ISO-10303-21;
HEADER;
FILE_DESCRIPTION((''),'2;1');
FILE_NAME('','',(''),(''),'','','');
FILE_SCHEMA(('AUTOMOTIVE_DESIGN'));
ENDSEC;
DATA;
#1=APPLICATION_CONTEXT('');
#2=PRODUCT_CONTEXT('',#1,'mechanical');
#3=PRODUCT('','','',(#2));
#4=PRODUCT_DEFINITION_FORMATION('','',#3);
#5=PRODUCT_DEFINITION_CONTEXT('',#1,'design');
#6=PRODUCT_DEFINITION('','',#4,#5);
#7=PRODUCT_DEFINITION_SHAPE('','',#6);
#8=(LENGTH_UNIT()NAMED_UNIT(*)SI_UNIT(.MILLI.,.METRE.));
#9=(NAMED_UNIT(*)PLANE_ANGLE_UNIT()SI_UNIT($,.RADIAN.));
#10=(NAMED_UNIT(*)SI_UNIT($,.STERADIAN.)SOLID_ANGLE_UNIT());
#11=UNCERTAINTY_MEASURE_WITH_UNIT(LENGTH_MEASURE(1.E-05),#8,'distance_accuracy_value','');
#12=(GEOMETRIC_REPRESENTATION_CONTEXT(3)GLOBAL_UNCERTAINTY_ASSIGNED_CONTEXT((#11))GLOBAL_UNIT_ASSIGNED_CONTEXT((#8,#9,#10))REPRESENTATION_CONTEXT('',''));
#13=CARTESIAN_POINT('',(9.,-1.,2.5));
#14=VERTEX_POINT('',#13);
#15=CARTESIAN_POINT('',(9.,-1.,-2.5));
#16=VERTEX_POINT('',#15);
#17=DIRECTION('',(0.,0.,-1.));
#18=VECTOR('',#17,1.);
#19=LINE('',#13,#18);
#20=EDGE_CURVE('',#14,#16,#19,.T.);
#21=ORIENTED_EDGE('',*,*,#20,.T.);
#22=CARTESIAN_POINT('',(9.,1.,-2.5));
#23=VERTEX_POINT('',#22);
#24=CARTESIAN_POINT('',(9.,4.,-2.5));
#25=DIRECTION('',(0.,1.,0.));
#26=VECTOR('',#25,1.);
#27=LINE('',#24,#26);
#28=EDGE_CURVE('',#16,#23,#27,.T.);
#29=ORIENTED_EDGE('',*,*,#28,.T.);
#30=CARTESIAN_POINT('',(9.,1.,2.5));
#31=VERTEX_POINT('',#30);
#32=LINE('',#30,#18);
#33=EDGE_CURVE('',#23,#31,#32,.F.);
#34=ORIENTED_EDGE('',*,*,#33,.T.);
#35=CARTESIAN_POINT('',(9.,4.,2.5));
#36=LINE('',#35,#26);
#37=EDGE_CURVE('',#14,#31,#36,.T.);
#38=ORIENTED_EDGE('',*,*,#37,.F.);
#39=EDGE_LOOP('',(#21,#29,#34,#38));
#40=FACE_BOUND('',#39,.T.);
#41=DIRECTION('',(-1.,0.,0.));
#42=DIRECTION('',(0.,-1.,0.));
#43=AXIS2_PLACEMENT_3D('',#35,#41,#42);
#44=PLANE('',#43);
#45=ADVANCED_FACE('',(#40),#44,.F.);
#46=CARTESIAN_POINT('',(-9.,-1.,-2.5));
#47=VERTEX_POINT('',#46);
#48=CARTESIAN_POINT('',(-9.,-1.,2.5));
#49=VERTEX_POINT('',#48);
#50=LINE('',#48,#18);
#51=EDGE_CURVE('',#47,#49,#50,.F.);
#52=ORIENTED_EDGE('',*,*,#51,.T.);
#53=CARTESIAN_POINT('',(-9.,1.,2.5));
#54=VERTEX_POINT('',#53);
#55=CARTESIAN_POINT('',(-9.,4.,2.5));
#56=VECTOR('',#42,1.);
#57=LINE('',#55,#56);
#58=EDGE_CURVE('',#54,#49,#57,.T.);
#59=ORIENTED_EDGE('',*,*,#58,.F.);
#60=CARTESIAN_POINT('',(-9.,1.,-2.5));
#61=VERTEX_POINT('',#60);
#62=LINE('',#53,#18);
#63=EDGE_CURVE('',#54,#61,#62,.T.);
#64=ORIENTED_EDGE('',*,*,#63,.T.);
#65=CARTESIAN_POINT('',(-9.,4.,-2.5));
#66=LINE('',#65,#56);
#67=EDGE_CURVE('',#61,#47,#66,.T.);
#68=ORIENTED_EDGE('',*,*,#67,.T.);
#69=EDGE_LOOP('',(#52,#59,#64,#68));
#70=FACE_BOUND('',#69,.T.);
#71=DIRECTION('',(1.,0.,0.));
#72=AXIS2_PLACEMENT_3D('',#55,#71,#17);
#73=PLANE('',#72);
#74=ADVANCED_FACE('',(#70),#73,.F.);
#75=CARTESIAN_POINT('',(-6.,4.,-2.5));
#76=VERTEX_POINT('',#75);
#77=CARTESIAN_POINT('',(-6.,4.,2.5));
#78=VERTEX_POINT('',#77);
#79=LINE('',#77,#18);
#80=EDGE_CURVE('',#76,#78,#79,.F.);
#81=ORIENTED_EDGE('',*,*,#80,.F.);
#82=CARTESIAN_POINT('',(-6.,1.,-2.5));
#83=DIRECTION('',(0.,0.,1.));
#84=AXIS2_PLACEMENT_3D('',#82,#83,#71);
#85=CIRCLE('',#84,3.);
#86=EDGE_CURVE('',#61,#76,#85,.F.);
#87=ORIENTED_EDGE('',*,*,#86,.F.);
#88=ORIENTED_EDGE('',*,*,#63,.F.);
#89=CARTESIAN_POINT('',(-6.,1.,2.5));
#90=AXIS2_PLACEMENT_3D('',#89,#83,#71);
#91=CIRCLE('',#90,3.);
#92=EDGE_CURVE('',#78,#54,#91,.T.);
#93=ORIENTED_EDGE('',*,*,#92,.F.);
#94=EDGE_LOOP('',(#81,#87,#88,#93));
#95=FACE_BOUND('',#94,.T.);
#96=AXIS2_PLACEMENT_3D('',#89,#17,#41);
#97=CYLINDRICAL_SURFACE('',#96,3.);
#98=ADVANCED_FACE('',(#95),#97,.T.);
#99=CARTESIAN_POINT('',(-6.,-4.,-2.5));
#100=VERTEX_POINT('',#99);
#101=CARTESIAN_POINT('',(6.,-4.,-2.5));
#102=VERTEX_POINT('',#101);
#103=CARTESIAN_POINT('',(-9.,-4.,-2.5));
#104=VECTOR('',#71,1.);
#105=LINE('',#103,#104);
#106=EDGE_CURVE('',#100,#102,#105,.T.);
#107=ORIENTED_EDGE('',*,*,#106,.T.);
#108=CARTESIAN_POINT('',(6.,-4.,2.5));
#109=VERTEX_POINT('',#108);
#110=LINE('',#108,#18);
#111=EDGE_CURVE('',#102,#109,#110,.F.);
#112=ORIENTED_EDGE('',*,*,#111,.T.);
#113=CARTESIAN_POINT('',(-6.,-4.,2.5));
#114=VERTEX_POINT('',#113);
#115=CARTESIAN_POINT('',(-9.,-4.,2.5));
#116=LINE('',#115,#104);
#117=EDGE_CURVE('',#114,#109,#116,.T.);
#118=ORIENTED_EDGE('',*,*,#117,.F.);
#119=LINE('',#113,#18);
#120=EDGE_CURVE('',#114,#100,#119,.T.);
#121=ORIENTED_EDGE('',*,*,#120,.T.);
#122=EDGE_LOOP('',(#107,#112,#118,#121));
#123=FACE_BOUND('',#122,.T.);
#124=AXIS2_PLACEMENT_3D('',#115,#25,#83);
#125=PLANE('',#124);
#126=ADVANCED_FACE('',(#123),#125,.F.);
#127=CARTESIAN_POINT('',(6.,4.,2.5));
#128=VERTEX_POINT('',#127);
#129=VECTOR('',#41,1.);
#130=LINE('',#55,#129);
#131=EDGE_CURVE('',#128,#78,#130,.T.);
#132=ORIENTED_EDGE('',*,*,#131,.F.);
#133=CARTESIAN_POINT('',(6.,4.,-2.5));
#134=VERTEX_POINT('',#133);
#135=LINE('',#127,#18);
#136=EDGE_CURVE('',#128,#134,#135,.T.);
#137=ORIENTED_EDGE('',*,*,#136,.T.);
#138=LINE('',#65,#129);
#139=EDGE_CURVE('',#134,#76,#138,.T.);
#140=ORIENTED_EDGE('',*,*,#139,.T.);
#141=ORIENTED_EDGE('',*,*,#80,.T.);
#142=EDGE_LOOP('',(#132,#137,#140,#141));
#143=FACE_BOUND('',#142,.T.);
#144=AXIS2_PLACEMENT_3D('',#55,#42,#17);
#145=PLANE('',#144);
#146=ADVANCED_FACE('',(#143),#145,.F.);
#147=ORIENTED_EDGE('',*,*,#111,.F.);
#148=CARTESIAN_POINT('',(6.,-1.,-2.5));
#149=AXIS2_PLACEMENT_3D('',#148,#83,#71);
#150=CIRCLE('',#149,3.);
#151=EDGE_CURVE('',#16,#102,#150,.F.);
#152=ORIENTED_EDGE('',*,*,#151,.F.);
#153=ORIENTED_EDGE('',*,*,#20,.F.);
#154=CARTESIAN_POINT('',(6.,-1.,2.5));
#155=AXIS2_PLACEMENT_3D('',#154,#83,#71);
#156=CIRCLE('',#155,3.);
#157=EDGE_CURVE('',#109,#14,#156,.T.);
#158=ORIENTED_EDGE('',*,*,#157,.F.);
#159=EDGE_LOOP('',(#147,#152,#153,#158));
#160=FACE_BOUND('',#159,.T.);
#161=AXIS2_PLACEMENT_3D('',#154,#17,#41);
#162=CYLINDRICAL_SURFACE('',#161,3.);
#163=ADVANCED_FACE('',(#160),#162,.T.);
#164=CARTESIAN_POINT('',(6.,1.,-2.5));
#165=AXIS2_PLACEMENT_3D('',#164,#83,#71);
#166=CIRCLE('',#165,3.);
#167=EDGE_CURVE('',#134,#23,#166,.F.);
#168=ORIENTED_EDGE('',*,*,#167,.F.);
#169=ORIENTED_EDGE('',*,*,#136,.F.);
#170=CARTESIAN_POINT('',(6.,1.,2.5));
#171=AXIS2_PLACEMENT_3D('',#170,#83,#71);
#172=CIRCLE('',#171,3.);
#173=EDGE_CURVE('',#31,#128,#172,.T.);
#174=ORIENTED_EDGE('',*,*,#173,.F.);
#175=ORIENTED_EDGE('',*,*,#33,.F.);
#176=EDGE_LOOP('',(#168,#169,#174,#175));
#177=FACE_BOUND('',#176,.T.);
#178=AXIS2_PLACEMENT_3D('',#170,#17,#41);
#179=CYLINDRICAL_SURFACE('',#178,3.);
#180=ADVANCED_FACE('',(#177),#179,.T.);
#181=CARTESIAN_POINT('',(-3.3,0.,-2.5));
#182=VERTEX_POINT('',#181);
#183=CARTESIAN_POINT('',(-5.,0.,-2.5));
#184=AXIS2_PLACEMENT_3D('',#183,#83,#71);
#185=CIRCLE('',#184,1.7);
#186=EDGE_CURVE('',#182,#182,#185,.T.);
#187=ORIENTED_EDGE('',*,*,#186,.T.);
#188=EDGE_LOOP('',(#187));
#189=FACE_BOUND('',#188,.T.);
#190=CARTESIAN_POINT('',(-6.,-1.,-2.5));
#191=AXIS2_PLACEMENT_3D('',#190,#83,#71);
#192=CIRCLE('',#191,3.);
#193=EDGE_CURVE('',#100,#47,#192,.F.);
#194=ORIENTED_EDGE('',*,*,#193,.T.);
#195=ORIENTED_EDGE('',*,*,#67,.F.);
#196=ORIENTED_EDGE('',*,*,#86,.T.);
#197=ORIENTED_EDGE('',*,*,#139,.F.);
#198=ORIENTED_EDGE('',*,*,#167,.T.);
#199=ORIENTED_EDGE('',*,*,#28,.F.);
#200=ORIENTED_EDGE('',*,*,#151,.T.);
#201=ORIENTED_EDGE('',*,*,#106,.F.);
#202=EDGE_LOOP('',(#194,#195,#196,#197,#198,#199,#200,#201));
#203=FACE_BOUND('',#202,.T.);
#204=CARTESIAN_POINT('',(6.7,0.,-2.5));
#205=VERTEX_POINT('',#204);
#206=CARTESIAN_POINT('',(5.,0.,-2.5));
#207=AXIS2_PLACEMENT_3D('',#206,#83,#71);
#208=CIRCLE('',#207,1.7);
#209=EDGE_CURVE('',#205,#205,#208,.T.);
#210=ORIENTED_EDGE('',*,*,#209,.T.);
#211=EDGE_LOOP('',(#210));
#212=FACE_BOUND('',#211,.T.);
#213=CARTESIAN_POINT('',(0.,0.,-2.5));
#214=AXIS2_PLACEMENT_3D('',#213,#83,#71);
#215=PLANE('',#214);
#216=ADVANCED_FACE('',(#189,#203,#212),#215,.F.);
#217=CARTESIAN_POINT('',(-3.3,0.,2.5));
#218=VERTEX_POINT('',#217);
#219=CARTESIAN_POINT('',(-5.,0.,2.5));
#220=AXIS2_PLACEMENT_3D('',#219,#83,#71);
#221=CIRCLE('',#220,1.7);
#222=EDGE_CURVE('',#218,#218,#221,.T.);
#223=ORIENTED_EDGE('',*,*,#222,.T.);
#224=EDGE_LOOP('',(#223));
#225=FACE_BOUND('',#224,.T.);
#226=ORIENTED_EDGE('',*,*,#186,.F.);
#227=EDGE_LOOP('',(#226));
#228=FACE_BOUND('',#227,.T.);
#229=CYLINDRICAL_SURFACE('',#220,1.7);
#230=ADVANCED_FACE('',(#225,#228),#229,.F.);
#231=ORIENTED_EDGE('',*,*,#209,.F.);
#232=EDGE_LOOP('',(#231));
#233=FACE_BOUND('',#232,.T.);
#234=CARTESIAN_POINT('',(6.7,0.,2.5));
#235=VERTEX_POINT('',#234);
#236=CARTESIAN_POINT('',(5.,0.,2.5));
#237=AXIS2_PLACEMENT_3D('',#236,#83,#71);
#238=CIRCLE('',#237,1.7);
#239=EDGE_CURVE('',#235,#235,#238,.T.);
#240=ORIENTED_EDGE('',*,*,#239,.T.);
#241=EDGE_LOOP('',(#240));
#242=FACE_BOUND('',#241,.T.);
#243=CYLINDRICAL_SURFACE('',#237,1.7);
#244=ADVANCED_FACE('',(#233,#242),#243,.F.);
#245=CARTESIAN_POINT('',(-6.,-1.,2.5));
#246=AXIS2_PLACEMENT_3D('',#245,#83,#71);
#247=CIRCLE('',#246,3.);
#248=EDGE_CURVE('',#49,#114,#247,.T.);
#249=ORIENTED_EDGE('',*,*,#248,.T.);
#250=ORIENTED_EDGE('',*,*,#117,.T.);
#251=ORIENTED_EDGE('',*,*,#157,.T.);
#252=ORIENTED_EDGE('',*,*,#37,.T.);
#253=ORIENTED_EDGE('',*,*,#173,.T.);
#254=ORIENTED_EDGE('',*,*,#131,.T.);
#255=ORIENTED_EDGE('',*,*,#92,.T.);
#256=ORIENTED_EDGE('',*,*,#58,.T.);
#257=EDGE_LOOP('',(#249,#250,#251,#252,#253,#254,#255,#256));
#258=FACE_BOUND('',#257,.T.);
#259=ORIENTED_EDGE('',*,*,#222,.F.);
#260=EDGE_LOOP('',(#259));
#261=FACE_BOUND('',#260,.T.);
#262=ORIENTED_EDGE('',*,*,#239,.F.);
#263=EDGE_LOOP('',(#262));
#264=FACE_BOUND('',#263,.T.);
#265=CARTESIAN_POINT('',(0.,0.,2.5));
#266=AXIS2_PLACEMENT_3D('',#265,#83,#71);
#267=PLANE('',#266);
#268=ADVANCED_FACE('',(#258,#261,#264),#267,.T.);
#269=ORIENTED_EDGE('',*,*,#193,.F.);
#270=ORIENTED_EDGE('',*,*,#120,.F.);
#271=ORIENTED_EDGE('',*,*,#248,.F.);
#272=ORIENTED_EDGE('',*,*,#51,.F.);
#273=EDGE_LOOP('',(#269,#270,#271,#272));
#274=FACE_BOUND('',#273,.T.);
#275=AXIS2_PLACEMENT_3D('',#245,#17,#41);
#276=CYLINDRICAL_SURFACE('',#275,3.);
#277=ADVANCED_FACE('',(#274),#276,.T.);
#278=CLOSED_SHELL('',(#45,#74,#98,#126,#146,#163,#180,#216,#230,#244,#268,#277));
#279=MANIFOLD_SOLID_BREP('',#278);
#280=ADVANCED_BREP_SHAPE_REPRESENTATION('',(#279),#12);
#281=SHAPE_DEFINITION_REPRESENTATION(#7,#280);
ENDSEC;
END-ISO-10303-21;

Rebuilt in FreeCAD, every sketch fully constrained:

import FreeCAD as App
import Part
import Sketcher

V = App.Vector
Q = App.Units.Quantity


def edges_at(feature, points):
    """Names of the edges that pass closest to the given points."""
    edges = feature.Shape.Edges
    near = lambda p: min(range(len(edges)), key=lambda i: edges[i].distToShape(Part.Vertex(*p))[0])
    return sorted({f"Edge{near(p) + 1}" for p in points})


def add_polygon(sketch, points):
    """Adds a closed chain of lines whose ends are joined by coincident constraints."""
    first, n = sketch.GeometryCount, len(points)
    for a, b in zip(points, points[1:] + points[:1]):
        sketch.addGeometry(Part.LineSegment(App.Vector(*a, 0), App.Vector(*b, 0)), False)
    for i in range(n):
        sketch.addConstraint(Sketcher.Constraint("Coincident", first + i, 2, first + (i + 1) % n, 1))

doc = App.newDocument("Part")
body = doc.addObject("PartDesign::Body", "Body")

# Sketch on XY plane
sketch1 = body.newObject("Sketcher::SketchObject", "Sketch")
sketch1.AttachmentSupport = (doc.getObject("XY_Plane"), [""])
sketch1.MapMode = "FlatFace"
add_polygon(sketch1, [(-9, 4), (-9, -4), (9, -4), (9, 4)])  # lines 0-3
sketch1.addConstraint([
    Sketcher.Constraint("Vertical", 0),
    Sketcher.Constraint("Horizontal", 1),
    Sketcher.Constraint("Vertical", 2),
    Sketcher.Constraint("Horizontal", 3),
    Sketcher.Constraint("Symmetric", 0, 2, 2, 2, -1, 1),
    Sketcher.Constraint("DistanceX", 1, 1, 1, 2, Q("18 mm")),
    Sketcher.Constraint("DistanceY", 0, 2, 0, 1, Q("8 mm")),
])
pad1 = body.newObject("PartDesign::Pad", "Pad")
pad1.Profile = sketch1
pad1.Length = 5
pad1.Midplane = True

# Sketch on XY plane
sketch2 = body.newObject("Sketcher::SketchObject", "Sketch001")
sketch2.AttachmentSupport = (doc.getObject("XY_Plane"), [""])
sketch2.MapMode = "FlatFace"
sketch2.AttachmentOffset = App.Placement(V(0, 0, 2.5), App.Rotation())
sketch2.addGeometry([
    Part.Circle(V(-5, 0, 0), V(0, 0, 1), 1.7),
    Part.Circle(V(5, 0, 0), V(0, 0, 1), 1.7),
], False)
sketch2.addConstraint([
    Sketcher.Constraint("Equal", 0, 1),
    Sketcher.Constraint("Symmetric", 0, 3, 1, 3, -1, 1),
    Sketcher.Constraint("PointOnObject", 0, 3, -1),
    Sketcher.Constraint("Diameter", 0, Q("3.4 mm")),
    Sketcher.Constraint("DistanceX", 0, 3, -1, 1, Q("5 mm")),
])
doc.recompute()
hole = body.newObject("PartDesign::Hole", "Hole")
hole.Profile = sketch2
hole.ThreadType = "None"
hole.Diameter = 3.4
hole.DepthType = "ThroughAll"
doc.recompute()

fillet = body.newObject("PartDesign::Fillet", "Fillet")
fillet.Base = (hole, edges_at(hole, [
    (9, -4, 0),
    (-9, -4, 0),
    (-9, 4, 0),
    (9, 4, 0),
]))
fillet.Radius = 3

doc.recompute()
